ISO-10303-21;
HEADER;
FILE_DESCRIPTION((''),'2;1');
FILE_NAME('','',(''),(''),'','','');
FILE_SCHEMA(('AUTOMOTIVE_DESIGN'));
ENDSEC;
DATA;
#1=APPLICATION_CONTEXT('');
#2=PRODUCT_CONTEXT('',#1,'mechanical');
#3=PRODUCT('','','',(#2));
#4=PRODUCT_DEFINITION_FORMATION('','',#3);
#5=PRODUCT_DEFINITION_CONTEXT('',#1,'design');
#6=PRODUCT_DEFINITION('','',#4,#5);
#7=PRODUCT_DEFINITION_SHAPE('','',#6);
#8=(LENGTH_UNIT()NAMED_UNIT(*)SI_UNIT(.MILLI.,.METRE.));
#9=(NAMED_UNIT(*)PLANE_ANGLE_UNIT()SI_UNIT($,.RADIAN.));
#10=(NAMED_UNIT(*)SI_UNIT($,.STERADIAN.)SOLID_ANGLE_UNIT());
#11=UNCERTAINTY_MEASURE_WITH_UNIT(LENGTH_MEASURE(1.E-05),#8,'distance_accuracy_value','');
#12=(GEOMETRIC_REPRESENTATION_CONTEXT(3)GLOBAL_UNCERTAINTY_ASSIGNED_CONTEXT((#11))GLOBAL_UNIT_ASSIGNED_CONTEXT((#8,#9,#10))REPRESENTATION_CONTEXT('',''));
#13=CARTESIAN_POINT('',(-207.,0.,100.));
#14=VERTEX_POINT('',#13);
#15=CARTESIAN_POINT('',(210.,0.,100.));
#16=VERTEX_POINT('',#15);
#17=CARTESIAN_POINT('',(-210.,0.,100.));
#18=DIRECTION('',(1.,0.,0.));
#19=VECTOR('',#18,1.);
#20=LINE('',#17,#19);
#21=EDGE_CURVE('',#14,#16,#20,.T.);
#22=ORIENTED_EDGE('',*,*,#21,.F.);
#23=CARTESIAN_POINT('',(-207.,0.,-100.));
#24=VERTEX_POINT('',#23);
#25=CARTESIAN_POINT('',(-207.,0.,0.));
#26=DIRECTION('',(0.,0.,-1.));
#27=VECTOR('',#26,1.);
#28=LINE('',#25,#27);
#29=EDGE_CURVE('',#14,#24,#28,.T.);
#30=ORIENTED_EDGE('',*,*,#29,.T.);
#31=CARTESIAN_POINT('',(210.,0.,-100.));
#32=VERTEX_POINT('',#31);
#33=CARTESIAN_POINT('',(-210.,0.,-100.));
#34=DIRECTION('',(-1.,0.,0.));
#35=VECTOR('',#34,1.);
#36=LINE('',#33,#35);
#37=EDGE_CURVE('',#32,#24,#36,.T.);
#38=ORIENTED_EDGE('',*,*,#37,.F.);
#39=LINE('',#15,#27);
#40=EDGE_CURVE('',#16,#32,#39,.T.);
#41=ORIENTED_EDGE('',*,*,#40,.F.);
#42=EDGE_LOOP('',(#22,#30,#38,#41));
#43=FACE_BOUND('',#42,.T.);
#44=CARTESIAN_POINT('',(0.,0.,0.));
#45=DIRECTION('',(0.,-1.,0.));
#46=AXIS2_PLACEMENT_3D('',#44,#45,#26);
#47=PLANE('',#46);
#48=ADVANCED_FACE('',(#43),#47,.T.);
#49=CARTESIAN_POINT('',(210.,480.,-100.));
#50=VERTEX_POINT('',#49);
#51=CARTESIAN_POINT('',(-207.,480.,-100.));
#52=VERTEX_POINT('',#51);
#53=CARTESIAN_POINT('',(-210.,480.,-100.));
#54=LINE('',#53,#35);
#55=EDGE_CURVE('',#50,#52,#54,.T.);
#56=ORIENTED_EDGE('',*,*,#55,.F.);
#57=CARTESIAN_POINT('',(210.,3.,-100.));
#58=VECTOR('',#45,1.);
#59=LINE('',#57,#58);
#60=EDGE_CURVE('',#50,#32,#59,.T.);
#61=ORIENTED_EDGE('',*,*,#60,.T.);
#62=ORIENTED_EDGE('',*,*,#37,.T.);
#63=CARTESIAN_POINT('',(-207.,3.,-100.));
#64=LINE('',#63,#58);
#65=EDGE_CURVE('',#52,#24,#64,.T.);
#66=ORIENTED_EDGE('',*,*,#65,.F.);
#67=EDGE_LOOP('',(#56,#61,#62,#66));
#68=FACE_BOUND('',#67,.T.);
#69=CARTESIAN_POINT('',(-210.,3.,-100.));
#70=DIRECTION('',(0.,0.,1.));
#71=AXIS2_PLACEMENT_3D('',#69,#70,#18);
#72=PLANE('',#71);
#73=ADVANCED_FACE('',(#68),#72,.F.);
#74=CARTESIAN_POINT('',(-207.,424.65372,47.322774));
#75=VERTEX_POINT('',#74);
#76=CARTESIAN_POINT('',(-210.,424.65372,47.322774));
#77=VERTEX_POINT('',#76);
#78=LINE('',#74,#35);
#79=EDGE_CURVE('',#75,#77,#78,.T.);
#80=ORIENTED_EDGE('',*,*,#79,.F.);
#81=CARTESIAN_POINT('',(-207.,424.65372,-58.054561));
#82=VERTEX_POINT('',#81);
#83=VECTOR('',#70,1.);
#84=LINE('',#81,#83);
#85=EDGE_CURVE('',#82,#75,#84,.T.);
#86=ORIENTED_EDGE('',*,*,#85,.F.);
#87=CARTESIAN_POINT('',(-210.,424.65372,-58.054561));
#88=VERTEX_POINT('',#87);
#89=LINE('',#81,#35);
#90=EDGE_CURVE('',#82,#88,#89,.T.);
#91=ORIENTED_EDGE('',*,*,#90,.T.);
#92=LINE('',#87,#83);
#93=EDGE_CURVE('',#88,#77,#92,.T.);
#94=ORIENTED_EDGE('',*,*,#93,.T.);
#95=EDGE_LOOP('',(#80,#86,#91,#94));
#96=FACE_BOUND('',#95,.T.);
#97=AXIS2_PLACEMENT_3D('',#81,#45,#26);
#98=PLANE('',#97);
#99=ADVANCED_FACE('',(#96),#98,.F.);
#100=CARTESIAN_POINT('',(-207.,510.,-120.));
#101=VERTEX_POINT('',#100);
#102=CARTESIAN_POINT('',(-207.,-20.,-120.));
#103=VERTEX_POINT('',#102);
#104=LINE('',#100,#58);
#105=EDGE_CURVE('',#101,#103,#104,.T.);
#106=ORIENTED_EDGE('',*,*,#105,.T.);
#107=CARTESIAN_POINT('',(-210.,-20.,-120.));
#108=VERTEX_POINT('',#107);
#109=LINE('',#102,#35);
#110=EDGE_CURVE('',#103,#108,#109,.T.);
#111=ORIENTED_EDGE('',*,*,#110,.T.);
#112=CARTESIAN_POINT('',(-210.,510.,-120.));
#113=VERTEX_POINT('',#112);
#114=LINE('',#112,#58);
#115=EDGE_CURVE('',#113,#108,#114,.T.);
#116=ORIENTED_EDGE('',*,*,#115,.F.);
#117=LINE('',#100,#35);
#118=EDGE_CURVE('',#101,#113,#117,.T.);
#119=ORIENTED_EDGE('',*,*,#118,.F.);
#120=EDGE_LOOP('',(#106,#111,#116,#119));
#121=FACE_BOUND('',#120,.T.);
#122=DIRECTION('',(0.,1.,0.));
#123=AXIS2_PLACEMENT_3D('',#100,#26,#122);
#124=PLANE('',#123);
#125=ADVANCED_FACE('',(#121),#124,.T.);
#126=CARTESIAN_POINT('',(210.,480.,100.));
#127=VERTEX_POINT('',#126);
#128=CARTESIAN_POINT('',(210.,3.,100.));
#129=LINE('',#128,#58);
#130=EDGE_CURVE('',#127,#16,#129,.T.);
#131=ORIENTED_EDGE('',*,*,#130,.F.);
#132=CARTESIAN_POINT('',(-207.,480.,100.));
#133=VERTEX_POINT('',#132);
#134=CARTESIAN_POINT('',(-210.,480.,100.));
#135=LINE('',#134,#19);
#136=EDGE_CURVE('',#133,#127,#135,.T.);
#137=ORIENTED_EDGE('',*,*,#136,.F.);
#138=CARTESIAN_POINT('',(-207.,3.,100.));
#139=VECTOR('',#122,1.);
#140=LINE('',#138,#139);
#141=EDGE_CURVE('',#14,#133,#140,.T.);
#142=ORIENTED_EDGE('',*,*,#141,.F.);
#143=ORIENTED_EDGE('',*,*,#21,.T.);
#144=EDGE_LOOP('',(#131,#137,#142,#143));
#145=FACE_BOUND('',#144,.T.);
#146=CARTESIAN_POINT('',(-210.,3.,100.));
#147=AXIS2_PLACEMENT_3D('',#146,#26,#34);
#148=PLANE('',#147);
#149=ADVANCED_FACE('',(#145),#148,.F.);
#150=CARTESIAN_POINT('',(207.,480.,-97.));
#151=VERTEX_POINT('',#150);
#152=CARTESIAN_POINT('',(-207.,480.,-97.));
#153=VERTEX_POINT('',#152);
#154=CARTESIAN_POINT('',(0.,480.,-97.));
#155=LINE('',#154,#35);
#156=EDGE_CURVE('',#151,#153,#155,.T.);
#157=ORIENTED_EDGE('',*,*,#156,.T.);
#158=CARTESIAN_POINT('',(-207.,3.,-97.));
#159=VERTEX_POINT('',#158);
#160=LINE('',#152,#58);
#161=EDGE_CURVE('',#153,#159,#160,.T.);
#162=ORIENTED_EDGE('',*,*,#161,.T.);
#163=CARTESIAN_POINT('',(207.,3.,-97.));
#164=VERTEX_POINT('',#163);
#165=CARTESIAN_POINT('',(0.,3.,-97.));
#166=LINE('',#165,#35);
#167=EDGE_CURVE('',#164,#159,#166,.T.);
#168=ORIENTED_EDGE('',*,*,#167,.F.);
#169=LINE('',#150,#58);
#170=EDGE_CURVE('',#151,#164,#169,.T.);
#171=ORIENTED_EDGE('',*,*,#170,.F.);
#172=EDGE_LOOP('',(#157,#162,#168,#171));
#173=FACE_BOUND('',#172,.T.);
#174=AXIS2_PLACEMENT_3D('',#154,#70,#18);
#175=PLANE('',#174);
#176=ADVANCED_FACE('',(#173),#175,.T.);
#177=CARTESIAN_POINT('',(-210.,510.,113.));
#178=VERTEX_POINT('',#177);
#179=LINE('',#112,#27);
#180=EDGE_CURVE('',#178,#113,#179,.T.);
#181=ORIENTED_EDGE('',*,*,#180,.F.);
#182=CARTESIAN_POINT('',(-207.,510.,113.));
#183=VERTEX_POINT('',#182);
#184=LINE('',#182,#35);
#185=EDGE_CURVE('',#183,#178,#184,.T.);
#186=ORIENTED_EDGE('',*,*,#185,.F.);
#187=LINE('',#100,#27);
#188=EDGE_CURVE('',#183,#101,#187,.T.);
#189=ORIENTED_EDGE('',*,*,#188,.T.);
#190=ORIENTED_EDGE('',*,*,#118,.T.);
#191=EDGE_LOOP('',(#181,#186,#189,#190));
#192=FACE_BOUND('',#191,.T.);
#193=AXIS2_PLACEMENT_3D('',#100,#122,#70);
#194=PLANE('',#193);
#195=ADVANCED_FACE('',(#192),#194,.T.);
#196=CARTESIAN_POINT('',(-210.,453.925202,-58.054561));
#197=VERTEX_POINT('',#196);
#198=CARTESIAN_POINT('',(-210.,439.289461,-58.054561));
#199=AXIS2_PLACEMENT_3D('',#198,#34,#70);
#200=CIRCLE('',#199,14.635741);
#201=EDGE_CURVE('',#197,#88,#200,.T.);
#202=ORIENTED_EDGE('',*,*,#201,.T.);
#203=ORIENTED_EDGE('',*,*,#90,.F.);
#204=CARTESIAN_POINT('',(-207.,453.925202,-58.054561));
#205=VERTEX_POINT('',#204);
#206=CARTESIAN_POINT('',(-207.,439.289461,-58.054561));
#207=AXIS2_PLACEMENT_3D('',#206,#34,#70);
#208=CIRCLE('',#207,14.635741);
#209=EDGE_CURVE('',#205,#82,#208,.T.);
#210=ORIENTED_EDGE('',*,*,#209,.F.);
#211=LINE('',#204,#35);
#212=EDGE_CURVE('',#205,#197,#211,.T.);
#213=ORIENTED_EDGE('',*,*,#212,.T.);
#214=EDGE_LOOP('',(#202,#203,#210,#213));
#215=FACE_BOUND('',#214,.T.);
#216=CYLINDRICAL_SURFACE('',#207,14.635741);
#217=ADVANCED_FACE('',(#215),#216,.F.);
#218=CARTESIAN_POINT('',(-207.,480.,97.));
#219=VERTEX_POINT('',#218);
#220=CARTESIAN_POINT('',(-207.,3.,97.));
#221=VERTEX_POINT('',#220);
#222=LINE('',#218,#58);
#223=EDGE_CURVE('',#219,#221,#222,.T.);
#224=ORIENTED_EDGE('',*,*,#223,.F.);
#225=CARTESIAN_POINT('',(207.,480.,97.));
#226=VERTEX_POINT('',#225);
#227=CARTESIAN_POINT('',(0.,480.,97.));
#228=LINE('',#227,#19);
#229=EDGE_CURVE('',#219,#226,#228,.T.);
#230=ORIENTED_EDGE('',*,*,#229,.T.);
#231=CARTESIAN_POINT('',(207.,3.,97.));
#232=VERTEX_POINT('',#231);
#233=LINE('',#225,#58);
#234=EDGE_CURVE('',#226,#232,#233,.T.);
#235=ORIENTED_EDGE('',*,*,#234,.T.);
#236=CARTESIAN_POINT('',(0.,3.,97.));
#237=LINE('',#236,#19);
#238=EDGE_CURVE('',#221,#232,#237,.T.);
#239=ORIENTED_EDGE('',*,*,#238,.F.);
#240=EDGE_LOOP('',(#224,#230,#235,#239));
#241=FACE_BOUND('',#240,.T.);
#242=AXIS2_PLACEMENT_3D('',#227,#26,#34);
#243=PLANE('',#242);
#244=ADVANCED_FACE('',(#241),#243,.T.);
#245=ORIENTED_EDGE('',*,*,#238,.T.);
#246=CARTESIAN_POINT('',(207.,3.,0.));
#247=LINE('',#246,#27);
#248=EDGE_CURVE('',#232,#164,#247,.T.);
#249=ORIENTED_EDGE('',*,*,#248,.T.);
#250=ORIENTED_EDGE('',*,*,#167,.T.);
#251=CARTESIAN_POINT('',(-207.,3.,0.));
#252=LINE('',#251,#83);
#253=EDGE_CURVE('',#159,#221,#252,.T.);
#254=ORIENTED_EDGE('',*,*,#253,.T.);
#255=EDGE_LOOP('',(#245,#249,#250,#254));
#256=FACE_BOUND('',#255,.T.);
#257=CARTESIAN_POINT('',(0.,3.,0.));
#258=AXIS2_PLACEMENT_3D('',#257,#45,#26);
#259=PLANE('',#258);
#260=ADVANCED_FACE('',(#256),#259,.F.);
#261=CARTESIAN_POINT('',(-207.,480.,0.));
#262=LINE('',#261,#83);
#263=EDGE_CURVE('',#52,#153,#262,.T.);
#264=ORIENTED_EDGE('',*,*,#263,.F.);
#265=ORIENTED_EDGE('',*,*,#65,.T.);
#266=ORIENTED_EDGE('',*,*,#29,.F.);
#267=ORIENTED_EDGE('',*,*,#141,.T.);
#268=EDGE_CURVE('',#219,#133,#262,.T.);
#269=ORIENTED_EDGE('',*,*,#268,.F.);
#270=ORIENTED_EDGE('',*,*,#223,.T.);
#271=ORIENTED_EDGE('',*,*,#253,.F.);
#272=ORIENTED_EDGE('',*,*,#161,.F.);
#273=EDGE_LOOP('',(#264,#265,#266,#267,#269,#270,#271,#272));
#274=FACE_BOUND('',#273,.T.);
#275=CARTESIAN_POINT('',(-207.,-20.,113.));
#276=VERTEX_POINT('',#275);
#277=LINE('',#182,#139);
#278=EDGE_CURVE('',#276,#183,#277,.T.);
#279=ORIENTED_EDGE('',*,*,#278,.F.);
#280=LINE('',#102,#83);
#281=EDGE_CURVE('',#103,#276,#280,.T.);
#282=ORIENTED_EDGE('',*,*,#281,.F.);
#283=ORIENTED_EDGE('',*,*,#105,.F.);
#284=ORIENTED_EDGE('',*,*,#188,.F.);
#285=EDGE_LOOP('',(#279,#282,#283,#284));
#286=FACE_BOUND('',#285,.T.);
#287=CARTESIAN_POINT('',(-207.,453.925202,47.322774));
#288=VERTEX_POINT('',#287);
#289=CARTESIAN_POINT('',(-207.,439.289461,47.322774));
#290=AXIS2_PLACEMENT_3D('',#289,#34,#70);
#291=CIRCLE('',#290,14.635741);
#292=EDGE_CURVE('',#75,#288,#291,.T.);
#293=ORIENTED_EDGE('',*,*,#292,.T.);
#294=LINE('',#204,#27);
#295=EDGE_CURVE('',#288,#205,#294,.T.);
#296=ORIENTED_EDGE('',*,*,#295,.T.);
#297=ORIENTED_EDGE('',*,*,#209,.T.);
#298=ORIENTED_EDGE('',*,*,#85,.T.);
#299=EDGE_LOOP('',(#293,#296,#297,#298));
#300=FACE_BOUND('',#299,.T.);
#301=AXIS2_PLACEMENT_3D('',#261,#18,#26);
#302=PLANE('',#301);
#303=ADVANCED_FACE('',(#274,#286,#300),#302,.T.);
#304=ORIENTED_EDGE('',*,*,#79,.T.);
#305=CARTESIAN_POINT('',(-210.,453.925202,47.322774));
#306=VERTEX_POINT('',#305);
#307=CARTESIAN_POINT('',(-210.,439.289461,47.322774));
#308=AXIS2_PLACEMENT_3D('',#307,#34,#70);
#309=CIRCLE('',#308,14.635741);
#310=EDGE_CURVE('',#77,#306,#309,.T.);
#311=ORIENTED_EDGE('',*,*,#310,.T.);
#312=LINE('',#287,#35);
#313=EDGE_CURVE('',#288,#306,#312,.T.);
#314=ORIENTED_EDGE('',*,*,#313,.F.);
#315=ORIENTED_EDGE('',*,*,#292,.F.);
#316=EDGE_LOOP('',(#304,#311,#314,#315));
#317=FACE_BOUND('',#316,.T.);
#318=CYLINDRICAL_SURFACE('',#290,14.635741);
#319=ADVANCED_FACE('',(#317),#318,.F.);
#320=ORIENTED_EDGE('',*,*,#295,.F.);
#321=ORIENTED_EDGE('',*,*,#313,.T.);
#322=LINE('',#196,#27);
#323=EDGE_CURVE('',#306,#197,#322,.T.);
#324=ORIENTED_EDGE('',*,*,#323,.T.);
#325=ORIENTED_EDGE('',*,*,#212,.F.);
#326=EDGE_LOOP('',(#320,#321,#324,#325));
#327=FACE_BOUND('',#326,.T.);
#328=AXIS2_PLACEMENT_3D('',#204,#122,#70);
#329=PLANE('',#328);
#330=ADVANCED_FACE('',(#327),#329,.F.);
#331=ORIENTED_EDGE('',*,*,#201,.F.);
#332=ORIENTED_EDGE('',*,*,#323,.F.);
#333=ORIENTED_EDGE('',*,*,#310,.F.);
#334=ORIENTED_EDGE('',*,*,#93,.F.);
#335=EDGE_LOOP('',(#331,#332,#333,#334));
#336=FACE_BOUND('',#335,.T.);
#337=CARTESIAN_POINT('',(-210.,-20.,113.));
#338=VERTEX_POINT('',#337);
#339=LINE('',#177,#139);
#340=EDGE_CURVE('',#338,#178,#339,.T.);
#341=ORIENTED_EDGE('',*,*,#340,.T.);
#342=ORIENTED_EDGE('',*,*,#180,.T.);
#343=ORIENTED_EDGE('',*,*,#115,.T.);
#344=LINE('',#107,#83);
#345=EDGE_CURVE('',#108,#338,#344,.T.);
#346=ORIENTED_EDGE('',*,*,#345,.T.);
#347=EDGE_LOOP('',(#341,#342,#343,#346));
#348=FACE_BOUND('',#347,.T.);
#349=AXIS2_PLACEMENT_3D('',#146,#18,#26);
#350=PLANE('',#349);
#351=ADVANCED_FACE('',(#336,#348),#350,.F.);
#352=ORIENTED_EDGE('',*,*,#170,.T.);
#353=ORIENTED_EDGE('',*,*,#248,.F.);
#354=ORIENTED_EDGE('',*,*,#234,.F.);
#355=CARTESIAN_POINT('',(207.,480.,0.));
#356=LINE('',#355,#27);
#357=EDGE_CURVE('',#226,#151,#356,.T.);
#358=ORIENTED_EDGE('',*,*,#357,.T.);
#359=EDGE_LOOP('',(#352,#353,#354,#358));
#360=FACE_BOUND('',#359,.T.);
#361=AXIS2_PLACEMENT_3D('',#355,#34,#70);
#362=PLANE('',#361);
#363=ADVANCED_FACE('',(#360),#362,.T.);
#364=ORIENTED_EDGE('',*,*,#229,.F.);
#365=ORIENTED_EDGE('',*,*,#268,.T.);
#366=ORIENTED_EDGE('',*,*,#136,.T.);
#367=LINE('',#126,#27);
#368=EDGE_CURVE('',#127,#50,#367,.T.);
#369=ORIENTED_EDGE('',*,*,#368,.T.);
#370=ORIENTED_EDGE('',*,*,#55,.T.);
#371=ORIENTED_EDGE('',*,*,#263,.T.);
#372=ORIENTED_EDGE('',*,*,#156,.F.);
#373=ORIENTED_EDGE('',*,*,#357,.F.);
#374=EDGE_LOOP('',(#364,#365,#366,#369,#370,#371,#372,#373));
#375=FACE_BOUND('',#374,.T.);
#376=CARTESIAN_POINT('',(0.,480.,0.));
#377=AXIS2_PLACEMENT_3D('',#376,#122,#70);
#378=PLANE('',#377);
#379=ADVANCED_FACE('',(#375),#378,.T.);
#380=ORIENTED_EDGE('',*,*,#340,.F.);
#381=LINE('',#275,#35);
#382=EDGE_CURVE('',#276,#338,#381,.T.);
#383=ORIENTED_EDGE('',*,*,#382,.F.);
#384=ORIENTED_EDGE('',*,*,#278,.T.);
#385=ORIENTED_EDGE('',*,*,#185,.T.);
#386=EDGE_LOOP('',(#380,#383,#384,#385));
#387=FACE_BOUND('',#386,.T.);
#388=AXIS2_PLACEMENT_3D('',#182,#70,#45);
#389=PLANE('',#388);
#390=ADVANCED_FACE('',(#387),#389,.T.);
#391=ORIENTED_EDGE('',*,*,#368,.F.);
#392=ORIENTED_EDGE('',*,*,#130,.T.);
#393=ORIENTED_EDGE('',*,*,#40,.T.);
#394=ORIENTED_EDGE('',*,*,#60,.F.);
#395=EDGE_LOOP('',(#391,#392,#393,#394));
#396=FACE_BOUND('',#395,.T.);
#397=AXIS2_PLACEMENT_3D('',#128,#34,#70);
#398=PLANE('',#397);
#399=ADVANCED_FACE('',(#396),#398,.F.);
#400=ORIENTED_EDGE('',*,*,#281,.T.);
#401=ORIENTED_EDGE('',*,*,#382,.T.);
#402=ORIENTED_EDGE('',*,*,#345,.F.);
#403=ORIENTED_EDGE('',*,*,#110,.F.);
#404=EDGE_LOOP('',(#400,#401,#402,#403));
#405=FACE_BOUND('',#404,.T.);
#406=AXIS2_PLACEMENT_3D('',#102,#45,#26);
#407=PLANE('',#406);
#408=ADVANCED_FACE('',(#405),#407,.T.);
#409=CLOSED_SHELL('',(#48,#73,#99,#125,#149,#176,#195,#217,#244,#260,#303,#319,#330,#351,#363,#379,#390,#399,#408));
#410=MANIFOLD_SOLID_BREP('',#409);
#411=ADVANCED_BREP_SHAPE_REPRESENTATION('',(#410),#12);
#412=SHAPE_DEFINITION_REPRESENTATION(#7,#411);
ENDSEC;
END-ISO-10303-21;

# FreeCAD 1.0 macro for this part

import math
import FreeCAD as App
import Part
import Sketcher
Q = App.Units.Quantity


def add_polygon(sketch, points):
    """Adds a closed chain of lines whose ends are joined by coincident constraints."""
    first, n = sketch.GeometryCount, len(points)
    for a, b in zip(points, points[1:] + points[:1]):
        sketch.addGeometry(Part.LineSegment(App.Vector(*a, 0), App.Vector(*b, 0)), False)
    for i in range(n):
        sketch.addConstraint(Sketcher.Constraint("Coincident", first + i, 2, first + (i + 1) % n, 1))

doc = App.newDocument("Part")
body = doc.addObject("PartDesign::Body", "Body")

sketch1 = body.newObject("Sketcher::SketchObject", "Sketch")
sketch1.AttachmentSupport = (doc.getObject("XZ_Plane"), [""])
sketch1.MapMode = "FlatFace"
add_polygon(sketch1, [(-210, -100), (-210, 100), (210, 100), (210, -100)])
sketch1.addConstraint([
    Sketcher.Constraint("Vertical", 0),
    Sketcher.Constraint("Horizontal", 1),
    Sketcher.Constraint("Vertical", 2),
    Sketcher.Constraint("Horizontal", 3),
    Sketcher.Constraint("Symmetric", 0, 2, 2, 2, -1, 1),
    Sketcher.Constraint("DistanceX", 1, 1, 1, 2, Q("420 mm")),
    Sketcher.Constraint("DistanceY", 0, 1, 0, 2, Q("200 mm")),
])
pad1 = body.newObject("PartDesign::Pad", "Pad")
pad1.Profile = sketch1
pad1.Length = 3
pad1.Reversed = True

sketch2 = body.newObject("Sketcher::SketchObject", "Sketch001")
sketch2.AttachmentSupport = (doc.getObject("XZ_Plane"), [""])
sketch2.MapMode = "FlatFace"
sketch2.AttachmentOffset = App.Placement(App.Vector(0, 0, -3), App.Rotation())
add_polygon(sketch2, [(-210, -100), (-210, 100), (210, 100), (210, -100)])
add_polygon(sketch2, [(207, 97), (-207, 97), (-207, -97), (207, -97)])
sketch2.addConstraint([
    Sketcher.Constraint("Vertical", 0),
    Sketcher.Constraint("Horizontal", 1),
    Sketcher.Constraint("Vertical", 2),
    Sketcher.Constraint("Horizontal", 3),
    Sketcher.Constraint("Horizontal", 4),
    Sketcher.Constraint("Vertical", 5),
    Sketcher.Constraint("Horizontal", 6),
    Sketcher.Constraint("Vertical", 7),
    Sketcher.Constraint("Symmetric", 0, 2, 2, 2, -1, 1),
    Sketcher.Constraint("Symmetric", 4, 2, 6, 2, -1, 1),
    Sketcher.Constraint("DistanceX", 1, 1, 1, 2, Q("420 mm")),
    Sketcher.Constraint("DistanceX", 4, 2, 4, 1, Q("414 mm")),
    Sketcher.Constraint("DistanceY", 0, 1, 0, 2, Q("200 mm")),
    Sketcher.Constraint("DistanceY", 5, 2, 5, 1, Q("194 mm")),
])
pad2 = body.newObject("PartDesign::Pad", "Pad001")
pad2.Profile = sketch2
pad2.Length = 477
pad2.Reversed = True

sketch3 = body.newObject("Sketcher::SketchObject", "Sketch002")
sketch3.AttachmentSupport = (doc.getObject("YZ_Plane"), [""])
sketch3.MapMode = "FlatFace"
sketch3.AttachmentOffset = App.Placement(App.Vector(0, 0, -210), App.Rotation())
add_polygon(sketch3, [(510, -120), (-20, -120), (-20, 113), (510, 113)])
sketch3.addConstraint([
    Sketcher.Constraint("Horizontal", 0),
    Sketcher.Constraint("Vertical", 1),
    Sketcher.Constraint("Horizontal", 2),
    Sketcher.Constraint("Vertical", 3),
    Sketcher.Constraint("DistanceX", 0, 2, 0, 1, Q("530 mm")),
    Sketcher.Constraint("DistanceY", 1, 1, 1, 2, Q("233 mm")),
    Sketcher.Constraint("DistanceX", 0, 2, -1, 1, Q("20 mm")),
    Sketcher.Constraint("DistanceY", 0, 2, -1, 1, Q("120 mm")),
])
pad3 = body.newObject("PartDesign::Pad", "Pad002")
pad3.Profile = sketch3
pad3.Length = 3

sketch4 = body.newObject("Sketcher::SketchObject", "Sketch003")
sketch4.AttachmentSupport = (doc.getObject("YZ_Plane"), [""])
sketch4.MapMode = "FlatFace"
sketch4.AttachmentOffset = App.Placement(App.Vector(0, 0, -210), App.Rotation())
sketch4.addGeometry([
    Part.LineSegment(App.Vector(454, 47, 0), App.Vector(454, -58, 0)),
    Part.ArcOfCircle(Part.Circle(App.Vector(439, -58, 0), App.Vector(0, 0, 1), 15), math.radians(180), math.radians(360)),
    Part.LineSegment(App.Vector(425, -58, 0), App.Vector(425, 47, 0)),
    Part.ArcOfCircle(Part.Circle(App.Vector(439, 47, 0), App.Vector(0, 0, 1), 15), math.radians(0), math.radians(180)),
], False)
sketch4.addConstraint([
    Sketcher.Constraint("Tangent", 0, 2, 1, 2),
    Sketcher.Constraint("Tangent", 1, 1, 2, 1),
    Sketcher.Constraint("Tangent", 2, 2, 3, 2),
    Sketcher.Constraint("Tangent", 3, 1, 0, 1),
    Sketcher.Constraint("Vertical", 0),
    Sketcher.Constraint("Vertical", 2),
    Sketcher.Constraint("Radius", 1, Q("14.635741 mm")),
    Sketcher.Constraint("DistanceY", 0, 2, 0, 1, Q("105.377335 mm")),
    Sketcher.Constraint("DistanceX", -1, 1, 1, 3, Q("439.289461 mm")),
    Sketcher.Constraint("DistanceY", 1, 3, -1, 1, Q("58.054561 mm")),
])
pocket1 = body.newObject("PartDesign::Pocket", "Pocket")
pocket1.Profile = sketch4
pocket1.Length = 3
pocket1.Reversed = True

doc.recompute()
